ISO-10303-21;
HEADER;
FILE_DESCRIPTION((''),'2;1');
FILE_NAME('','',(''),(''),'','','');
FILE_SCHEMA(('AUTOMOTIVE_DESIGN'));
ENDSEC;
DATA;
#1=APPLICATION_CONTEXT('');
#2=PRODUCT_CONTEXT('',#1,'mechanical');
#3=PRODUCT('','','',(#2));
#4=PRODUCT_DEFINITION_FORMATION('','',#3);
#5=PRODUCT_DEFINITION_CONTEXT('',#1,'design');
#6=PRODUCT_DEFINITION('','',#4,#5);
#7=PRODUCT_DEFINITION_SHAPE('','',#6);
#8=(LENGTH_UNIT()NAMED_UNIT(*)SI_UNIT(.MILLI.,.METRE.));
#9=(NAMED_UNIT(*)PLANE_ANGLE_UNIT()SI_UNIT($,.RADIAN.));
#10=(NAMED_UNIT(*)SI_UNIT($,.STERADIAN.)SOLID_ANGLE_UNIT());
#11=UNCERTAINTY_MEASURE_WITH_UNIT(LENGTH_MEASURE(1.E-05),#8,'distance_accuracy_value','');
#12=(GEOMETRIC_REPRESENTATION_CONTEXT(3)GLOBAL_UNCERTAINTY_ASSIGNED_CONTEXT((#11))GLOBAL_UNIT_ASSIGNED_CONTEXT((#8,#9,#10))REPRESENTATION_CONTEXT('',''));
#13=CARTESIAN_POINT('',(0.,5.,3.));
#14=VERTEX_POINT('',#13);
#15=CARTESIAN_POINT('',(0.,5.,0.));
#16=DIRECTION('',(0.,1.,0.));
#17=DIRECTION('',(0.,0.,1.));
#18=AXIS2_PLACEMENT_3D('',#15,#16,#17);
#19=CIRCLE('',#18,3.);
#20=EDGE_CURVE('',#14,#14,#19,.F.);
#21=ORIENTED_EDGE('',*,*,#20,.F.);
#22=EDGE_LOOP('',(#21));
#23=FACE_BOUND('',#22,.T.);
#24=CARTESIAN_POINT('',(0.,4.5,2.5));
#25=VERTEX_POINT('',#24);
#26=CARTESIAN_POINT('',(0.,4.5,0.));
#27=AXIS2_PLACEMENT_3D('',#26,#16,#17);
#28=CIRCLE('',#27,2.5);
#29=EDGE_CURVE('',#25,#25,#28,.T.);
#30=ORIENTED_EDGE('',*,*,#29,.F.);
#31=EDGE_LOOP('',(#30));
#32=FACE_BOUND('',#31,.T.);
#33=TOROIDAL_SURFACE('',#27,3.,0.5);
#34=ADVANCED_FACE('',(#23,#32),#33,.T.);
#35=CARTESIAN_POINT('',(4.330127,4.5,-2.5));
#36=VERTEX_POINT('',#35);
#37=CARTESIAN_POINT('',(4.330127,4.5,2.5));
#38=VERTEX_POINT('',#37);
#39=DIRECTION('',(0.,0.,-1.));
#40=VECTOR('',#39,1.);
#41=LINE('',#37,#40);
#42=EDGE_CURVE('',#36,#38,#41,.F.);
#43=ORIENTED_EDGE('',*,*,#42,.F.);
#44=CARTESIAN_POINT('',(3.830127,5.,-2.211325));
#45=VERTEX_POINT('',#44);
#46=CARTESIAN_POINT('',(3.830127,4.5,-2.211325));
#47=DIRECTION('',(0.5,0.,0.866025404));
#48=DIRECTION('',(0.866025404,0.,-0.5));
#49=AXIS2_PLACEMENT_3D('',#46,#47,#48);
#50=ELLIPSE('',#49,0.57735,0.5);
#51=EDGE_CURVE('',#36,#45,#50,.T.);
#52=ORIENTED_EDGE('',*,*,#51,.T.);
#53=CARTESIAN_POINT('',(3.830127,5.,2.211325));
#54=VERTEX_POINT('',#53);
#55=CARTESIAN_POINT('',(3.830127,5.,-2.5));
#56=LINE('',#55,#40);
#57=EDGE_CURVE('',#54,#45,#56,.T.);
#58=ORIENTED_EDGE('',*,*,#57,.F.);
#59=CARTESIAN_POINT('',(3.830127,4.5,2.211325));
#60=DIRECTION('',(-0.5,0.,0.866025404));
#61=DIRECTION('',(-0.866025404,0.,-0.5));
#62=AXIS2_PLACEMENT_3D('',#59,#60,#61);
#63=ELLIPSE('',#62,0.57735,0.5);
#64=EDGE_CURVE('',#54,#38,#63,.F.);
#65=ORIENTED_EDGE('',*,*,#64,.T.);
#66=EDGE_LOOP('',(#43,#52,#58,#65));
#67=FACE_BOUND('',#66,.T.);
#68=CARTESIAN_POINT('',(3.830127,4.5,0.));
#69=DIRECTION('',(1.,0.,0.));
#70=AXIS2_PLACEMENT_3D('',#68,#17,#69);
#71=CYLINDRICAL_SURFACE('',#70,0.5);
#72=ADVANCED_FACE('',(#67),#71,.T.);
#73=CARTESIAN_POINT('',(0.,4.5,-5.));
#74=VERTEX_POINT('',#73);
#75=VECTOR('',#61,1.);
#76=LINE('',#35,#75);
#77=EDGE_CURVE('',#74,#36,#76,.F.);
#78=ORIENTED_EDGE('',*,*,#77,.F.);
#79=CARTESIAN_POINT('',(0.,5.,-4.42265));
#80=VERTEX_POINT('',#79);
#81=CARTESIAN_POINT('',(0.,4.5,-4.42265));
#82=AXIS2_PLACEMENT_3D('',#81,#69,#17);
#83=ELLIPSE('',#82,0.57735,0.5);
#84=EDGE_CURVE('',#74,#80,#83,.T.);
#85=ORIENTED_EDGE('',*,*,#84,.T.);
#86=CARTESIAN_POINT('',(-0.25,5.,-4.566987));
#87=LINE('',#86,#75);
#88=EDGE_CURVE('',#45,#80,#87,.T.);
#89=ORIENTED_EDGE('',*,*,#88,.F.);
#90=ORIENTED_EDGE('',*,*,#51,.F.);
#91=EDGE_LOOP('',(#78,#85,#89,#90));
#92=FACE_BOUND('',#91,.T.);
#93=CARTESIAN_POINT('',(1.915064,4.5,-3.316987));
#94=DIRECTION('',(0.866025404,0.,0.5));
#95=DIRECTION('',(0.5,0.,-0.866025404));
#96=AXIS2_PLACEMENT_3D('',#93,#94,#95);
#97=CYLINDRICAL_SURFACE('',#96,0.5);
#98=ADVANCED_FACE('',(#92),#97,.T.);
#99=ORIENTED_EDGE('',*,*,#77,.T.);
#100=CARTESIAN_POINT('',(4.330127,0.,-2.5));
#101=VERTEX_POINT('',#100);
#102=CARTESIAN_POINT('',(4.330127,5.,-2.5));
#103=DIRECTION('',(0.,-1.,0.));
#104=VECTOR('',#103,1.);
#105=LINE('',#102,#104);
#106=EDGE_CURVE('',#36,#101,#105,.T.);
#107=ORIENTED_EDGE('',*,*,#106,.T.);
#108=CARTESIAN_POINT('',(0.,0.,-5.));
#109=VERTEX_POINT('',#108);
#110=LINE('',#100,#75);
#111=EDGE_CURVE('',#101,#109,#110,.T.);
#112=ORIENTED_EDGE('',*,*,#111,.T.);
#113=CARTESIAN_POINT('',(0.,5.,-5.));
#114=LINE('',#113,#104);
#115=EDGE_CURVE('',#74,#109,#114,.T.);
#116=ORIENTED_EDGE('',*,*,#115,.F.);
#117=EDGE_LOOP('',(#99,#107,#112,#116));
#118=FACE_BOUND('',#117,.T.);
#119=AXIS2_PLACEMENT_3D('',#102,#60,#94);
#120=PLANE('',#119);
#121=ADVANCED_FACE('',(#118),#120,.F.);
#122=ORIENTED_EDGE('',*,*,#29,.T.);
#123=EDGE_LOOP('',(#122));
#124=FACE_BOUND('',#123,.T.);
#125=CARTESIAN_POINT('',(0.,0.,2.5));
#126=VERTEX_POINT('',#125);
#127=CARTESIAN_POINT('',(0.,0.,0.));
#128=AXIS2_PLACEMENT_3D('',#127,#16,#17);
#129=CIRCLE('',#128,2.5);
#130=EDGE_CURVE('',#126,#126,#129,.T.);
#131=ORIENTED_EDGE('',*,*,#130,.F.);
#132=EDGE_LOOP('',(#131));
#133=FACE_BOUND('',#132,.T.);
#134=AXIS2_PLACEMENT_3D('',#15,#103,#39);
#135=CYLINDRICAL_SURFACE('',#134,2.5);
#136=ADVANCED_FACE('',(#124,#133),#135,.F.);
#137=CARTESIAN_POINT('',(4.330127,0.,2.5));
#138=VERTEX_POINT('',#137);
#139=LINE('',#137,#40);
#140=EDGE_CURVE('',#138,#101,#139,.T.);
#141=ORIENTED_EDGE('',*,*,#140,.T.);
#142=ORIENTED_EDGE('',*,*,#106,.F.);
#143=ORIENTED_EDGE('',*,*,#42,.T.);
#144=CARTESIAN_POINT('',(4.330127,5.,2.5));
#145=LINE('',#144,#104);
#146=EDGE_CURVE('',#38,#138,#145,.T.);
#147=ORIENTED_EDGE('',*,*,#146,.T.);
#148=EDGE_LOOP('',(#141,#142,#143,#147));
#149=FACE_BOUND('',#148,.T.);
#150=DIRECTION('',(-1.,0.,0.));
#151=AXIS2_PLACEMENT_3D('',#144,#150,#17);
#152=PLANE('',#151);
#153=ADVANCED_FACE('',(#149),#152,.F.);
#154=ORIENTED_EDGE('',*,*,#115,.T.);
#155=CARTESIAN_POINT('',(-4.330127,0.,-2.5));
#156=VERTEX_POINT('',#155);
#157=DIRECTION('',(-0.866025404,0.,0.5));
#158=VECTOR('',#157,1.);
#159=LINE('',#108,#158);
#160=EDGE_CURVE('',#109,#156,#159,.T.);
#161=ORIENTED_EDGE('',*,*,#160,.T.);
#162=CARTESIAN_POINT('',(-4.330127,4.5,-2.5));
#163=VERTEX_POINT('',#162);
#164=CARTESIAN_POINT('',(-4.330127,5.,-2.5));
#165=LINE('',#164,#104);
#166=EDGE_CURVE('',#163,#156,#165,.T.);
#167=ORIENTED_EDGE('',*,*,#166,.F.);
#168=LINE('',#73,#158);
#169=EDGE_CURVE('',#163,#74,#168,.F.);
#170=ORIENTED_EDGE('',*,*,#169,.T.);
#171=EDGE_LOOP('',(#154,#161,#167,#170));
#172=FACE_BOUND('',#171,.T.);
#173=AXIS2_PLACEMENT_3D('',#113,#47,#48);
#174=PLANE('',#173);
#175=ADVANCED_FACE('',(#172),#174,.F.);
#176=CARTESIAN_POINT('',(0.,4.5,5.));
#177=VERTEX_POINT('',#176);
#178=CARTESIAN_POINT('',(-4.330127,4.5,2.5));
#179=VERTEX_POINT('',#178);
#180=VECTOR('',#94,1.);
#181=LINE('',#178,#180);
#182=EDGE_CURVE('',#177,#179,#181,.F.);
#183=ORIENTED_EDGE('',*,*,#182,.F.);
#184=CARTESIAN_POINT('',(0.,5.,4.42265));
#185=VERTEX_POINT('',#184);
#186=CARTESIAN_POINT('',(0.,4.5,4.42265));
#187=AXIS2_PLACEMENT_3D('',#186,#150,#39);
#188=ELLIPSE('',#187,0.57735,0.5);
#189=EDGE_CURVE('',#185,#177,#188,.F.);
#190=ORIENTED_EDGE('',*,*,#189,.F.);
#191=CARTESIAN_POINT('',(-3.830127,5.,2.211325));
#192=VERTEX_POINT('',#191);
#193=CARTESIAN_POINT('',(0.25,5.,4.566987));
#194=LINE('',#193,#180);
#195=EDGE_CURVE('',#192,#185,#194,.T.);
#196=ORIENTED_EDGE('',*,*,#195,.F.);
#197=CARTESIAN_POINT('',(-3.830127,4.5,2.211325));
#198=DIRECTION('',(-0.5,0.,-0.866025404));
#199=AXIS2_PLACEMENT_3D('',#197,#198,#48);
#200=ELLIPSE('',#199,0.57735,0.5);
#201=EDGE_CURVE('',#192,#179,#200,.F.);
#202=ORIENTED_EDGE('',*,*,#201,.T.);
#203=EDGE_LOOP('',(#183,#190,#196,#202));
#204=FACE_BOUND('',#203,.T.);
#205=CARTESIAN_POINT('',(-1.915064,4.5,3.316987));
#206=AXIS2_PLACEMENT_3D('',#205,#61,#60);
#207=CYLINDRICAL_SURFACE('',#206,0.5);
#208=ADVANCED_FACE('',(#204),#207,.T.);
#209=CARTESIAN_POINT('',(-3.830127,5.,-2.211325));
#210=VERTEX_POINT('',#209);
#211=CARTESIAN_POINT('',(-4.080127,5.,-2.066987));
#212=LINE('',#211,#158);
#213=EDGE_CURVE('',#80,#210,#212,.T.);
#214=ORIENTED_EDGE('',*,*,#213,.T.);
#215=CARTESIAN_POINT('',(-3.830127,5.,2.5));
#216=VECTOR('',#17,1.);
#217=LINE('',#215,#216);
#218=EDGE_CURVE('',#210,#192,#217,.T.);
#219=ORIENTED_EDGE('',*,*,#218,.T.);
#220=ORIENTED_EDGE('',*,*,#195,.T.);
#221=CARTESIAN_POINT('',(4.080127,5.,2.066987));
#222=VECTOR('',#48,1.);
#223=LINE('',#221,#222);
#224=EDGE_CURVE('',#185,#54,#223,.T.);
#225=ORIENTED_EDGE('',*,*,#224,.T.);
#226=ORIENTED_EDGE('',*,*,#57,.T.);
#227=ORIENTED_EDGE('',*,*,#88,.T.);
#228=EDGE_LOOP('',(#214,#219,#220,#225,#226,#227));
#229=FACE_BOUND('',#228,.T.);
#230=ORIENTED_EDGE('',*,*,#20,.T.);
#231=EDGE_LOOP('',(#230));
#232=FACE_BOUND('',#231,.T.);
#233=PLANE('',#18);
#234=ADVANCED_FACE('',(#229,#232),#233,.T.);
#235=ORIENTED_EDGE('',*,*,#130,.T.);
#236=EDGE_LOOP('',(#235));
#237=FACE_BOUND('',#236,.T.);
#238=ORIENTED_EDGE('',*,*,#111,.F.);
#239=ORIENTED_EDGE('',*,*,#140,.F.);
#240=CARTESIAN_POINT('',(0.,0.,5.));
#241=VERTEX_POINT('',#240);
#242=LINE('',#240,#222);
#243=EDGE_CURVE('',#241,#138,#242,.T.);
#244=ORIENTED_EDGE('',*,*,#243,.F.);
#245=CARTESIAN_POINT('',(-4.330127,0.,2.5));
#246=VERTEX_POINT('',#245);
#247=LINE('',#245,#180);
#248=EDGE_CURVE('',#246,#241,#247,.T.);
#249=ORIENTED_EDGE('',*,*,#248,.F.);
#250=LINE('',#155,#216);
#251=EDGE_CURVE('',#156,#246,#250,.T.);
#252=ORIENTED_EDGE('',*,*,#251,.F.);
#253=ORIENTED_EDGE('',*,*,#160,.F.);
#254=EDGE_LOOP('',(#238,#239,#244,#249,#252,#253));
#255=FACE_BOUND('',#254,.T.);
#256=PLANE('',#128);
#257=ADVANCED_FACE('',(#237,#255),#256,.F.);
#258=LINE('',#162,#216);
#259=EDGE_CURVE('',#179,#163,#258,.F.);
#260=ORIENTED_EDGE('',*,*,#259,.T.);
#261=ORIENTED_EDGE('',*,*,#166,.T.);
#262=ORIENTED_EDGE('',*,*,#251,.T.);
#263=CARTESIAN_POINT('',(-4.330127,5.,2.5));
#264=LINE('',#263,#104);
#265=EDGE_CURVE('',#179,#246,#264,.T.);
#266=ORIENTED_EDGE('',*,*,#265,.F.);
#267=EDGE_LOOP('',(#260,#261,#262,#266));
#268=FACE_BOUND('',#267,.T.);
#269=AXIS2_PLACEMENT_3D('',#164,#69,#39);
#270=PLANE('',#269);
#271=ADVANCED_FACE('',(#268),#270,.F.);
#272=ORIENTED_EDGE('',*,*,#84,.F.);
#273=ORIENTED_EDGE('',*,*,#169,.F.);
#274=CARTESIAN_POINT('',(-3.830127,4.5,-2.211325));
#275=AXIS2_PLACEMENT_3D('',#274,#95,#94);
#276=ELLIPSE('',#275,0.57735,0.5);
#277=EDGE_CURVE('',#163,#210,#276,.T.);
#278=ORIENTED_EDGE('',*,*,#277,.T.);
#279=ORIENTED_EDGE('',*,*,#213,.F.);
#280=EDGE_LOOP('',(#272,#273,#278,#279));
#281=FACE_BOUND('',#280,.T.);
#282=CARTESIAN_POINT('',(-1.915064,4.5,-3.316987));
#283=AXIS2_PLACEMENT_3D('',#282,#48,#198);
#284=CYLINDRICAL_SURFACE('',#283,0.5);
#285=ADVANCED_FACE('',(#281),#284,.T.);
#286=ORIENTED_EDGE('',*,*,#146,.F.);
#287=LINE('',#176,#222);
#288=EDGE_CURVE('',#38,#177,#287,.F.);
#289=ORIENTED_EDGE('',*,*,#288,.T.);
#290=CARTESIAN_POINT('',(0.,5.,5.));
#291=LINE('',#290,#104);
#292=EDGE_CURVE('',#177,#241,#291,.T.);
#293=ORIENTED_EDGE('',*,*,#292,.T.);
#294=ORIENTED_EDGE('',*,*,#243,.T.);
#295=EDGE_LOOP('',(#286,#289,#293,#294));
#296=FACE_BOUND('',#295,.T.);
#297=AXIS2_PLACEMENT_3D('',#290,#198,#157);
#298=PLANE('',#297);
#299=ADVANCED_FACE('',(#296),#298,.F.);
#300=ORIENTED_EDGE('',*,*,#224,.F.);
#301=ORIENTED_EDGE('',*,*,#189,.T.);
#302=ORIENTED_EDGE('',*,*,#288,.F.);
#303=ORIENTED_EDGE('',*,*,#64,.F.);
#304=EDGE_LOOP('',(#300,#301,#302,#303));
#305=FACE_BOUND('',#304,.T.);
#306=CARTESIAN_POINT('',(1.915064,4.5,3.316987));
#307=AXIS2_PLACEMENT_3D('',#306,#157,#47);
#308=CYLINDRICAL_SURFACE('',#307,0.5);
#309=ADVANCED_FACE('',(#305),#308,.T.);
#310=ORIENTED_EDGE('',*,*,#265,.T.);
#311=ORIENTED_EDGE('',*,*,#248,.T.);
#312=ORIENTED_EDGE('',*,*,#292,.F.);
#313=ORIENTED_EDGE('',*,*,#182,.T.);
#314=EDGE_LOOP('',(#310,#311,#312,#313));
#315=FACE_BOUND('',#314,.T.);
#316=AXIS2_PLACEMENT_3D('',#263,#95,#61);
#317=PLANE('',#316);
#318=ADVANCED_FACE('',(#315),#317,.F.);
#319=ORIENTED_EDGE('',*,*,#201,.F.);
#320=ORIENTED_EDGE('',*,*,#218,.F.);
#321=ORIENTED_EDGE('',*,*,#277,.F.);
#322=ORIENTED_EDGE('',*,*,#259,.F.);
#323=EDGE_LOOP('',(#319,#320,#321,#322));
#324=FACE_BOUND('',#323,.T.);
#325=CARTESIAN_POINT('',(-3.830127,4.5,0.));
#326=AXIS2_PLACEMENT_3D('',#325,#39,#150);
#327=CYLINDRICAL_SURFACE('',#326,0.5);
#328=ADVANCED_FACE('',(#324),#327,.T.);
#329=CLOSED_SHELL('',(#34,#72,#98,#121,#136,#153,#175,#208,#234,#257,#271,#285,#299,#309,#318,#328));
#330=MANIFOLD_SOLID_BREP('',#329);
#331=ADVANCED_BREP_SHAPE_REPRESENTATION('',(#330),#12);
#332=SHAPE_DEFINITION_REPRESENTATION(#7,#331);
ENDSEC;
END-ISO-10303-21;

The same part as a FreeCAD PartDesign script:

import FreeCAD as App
import Part
import Sketcher
from FreeCAD import Vector
Q = App.Units.Quantity


def edges_at(feature, points):
    """Names of the edges that pass closest to the given points."""
    edges = feature.Shape.Edges
    near = lambda p: min(range(len(edges)), key=lambda i: edges[i].distToShape(Part.Vertex(*p))[0])
    return sorted({f"Edge{near(p) + 1}" for p in points})

doc = App.newDocument("Part")
params = doc.addObject("Spreadsheet::Sheet", "Params")
for row, (alias, value) in enumerate([
    ("sketch1_diameter", "5 mm"),
    ("sketch1_height", "5 mm"),
    ("sketch1_length", "5 mm"),
    ("pad1_length", "5 mm"),
    ("fillet_radius", "0.5 mm"),
], start=1):
    params.set(f"A{row}", alias)
    params.set(f"B{row}", "=" + value)
    params.setAlias(f"B{row}", alias)

body = doc.addObject("PartDesign::Body", "Body")

# Sketch on XZ plane
sketch1 = body.newObject("Sketcher::SketchObject", "Sketch")
sketch1.AttachmentSupport = (doc.getObject("XZ_Plane"), [""])
sketch1.MapMode = "FlatFace"
sketch1.addGeometry(Part.LineSegment(Vector(0, -5, 0), Vector(-4.3, -2.5, 0)), False)
sketch1.addGeometry(Part.LineSegment(Vector(-4.3, -2.5, 0), Vector(-4.3, 2.5, 0)), False)
sketch1.addGeometry(Part.LineSegment(Vector(-4.3, 2.5, 0), Vector(0, 5, 0)), False)
sketch1.addGeometry(Part.LineSegment(Vector(0, 5, 0), Vector(4.3, 2.5, 0)), False)
sketch1.addGeometry(Part.LineSegment(Vector(4.3, 2.5, 0), Vector(4.3, -2.5, 0)), False)
sketch1.addGeometry(Part.LineSegment(Vector(4.3, -2.5, 0), Vector(0, -5, 0)), False)
sketch1.addGeometry(Part.Circle(Vector(0, 0, 0), Vector(0, 0, 1), 2.5), False)
sketch1.addConstraint(Sketcher.Constraint("Coincident", 0, 2, 1, 1))
sketch1.addConstraint(Sketcher.Constraint("Coincident", 1, 2, 2, 1))
sketch1.addConstraint(Sketcher.Constraint("Coincident", 2, 2, 3, 1))
sketch1.addConstraint(Sketcher.Constraint("Coincident", 3, 2, 4, 1))
sketch1.addConstraint(Sketcher.Constraint("Coincident", 4, 2, 5, 1))
sketch1.addConstraint(Sketcher.Constraint("Coincident", 5, 2, 0, 1))
sketch1.addConstraint(Sketcher.Constraint("Vertical", 1))
sketch1.addConstraint(Sketcher.Constraint("Vertical", 4))
sketch1.addConstraint(Sketcher.Constraint("Coincident", 6, 3, -1, 1))
sketch1.addConstraint(Sketcher.Constraint("Symmetric", 0, 2, 3, 2, -1, 1))
sketch1.addConstraint(Sketcher.Constraint("Symmetric", 2, 2, 5, 2, -1, 1))
sketch1.addConstraint(Sketcher.Constraint("PointOnObject", 2, 2, -2))
sketch1.addConstraint(Sketcher.Constraint("Parallel", 2, 5))
sketch1.addConstraint(Sketcher.Constraint("Horizontal", 1, 2, 3, 2))
sketch1.addConstraint(Sketcher.Constraint("Diameter", 6, Q("5 mm")))
sketch1.addConstraint(Sketcher.Constraint("DistanceY", 1, 1, 1, 2, Q("5 mm")))
sketch1.addConstraint(Sketcher.Constraint("Angle", 0, Q("150 deg")))
sketch1.addConstraint(Sketcher.Constraint("Distance", 0, Q("5 mm")))
sketch1.setExpression("Constraints[14]", "Params.sketch1_diameter")
sketch1.setExpression("Constraints[15]", "Params.sketch1_height")
sketch1.setExpression("Constraints[17]", "Params.sketch1_length")
pad1 = body.newObject("PartDesign::Pad", "Pad")
pad1.Profile = sketch1
pad1.setExpression("Length", "Params.pad1_length")
pad1.Reversed = True
doc.recompute()

fillet = body.newObject("PartDesign::Fillet", "Fillet")
fillet.Base = (pad1, edges_at(pad1, [
    (-4.33, 5, 0),
    (-2.165, 5, 3.75),
    (2.165, 5, 3.75),
    (0, 5, -2.5),
    (4.33, 5, 0),
    (2.165, 5, -3.75),
    (-2.165, 5, -3.75),
]))
fillet.setExpression("Radius", "Params.fillet_radius")

doc.recompute()
